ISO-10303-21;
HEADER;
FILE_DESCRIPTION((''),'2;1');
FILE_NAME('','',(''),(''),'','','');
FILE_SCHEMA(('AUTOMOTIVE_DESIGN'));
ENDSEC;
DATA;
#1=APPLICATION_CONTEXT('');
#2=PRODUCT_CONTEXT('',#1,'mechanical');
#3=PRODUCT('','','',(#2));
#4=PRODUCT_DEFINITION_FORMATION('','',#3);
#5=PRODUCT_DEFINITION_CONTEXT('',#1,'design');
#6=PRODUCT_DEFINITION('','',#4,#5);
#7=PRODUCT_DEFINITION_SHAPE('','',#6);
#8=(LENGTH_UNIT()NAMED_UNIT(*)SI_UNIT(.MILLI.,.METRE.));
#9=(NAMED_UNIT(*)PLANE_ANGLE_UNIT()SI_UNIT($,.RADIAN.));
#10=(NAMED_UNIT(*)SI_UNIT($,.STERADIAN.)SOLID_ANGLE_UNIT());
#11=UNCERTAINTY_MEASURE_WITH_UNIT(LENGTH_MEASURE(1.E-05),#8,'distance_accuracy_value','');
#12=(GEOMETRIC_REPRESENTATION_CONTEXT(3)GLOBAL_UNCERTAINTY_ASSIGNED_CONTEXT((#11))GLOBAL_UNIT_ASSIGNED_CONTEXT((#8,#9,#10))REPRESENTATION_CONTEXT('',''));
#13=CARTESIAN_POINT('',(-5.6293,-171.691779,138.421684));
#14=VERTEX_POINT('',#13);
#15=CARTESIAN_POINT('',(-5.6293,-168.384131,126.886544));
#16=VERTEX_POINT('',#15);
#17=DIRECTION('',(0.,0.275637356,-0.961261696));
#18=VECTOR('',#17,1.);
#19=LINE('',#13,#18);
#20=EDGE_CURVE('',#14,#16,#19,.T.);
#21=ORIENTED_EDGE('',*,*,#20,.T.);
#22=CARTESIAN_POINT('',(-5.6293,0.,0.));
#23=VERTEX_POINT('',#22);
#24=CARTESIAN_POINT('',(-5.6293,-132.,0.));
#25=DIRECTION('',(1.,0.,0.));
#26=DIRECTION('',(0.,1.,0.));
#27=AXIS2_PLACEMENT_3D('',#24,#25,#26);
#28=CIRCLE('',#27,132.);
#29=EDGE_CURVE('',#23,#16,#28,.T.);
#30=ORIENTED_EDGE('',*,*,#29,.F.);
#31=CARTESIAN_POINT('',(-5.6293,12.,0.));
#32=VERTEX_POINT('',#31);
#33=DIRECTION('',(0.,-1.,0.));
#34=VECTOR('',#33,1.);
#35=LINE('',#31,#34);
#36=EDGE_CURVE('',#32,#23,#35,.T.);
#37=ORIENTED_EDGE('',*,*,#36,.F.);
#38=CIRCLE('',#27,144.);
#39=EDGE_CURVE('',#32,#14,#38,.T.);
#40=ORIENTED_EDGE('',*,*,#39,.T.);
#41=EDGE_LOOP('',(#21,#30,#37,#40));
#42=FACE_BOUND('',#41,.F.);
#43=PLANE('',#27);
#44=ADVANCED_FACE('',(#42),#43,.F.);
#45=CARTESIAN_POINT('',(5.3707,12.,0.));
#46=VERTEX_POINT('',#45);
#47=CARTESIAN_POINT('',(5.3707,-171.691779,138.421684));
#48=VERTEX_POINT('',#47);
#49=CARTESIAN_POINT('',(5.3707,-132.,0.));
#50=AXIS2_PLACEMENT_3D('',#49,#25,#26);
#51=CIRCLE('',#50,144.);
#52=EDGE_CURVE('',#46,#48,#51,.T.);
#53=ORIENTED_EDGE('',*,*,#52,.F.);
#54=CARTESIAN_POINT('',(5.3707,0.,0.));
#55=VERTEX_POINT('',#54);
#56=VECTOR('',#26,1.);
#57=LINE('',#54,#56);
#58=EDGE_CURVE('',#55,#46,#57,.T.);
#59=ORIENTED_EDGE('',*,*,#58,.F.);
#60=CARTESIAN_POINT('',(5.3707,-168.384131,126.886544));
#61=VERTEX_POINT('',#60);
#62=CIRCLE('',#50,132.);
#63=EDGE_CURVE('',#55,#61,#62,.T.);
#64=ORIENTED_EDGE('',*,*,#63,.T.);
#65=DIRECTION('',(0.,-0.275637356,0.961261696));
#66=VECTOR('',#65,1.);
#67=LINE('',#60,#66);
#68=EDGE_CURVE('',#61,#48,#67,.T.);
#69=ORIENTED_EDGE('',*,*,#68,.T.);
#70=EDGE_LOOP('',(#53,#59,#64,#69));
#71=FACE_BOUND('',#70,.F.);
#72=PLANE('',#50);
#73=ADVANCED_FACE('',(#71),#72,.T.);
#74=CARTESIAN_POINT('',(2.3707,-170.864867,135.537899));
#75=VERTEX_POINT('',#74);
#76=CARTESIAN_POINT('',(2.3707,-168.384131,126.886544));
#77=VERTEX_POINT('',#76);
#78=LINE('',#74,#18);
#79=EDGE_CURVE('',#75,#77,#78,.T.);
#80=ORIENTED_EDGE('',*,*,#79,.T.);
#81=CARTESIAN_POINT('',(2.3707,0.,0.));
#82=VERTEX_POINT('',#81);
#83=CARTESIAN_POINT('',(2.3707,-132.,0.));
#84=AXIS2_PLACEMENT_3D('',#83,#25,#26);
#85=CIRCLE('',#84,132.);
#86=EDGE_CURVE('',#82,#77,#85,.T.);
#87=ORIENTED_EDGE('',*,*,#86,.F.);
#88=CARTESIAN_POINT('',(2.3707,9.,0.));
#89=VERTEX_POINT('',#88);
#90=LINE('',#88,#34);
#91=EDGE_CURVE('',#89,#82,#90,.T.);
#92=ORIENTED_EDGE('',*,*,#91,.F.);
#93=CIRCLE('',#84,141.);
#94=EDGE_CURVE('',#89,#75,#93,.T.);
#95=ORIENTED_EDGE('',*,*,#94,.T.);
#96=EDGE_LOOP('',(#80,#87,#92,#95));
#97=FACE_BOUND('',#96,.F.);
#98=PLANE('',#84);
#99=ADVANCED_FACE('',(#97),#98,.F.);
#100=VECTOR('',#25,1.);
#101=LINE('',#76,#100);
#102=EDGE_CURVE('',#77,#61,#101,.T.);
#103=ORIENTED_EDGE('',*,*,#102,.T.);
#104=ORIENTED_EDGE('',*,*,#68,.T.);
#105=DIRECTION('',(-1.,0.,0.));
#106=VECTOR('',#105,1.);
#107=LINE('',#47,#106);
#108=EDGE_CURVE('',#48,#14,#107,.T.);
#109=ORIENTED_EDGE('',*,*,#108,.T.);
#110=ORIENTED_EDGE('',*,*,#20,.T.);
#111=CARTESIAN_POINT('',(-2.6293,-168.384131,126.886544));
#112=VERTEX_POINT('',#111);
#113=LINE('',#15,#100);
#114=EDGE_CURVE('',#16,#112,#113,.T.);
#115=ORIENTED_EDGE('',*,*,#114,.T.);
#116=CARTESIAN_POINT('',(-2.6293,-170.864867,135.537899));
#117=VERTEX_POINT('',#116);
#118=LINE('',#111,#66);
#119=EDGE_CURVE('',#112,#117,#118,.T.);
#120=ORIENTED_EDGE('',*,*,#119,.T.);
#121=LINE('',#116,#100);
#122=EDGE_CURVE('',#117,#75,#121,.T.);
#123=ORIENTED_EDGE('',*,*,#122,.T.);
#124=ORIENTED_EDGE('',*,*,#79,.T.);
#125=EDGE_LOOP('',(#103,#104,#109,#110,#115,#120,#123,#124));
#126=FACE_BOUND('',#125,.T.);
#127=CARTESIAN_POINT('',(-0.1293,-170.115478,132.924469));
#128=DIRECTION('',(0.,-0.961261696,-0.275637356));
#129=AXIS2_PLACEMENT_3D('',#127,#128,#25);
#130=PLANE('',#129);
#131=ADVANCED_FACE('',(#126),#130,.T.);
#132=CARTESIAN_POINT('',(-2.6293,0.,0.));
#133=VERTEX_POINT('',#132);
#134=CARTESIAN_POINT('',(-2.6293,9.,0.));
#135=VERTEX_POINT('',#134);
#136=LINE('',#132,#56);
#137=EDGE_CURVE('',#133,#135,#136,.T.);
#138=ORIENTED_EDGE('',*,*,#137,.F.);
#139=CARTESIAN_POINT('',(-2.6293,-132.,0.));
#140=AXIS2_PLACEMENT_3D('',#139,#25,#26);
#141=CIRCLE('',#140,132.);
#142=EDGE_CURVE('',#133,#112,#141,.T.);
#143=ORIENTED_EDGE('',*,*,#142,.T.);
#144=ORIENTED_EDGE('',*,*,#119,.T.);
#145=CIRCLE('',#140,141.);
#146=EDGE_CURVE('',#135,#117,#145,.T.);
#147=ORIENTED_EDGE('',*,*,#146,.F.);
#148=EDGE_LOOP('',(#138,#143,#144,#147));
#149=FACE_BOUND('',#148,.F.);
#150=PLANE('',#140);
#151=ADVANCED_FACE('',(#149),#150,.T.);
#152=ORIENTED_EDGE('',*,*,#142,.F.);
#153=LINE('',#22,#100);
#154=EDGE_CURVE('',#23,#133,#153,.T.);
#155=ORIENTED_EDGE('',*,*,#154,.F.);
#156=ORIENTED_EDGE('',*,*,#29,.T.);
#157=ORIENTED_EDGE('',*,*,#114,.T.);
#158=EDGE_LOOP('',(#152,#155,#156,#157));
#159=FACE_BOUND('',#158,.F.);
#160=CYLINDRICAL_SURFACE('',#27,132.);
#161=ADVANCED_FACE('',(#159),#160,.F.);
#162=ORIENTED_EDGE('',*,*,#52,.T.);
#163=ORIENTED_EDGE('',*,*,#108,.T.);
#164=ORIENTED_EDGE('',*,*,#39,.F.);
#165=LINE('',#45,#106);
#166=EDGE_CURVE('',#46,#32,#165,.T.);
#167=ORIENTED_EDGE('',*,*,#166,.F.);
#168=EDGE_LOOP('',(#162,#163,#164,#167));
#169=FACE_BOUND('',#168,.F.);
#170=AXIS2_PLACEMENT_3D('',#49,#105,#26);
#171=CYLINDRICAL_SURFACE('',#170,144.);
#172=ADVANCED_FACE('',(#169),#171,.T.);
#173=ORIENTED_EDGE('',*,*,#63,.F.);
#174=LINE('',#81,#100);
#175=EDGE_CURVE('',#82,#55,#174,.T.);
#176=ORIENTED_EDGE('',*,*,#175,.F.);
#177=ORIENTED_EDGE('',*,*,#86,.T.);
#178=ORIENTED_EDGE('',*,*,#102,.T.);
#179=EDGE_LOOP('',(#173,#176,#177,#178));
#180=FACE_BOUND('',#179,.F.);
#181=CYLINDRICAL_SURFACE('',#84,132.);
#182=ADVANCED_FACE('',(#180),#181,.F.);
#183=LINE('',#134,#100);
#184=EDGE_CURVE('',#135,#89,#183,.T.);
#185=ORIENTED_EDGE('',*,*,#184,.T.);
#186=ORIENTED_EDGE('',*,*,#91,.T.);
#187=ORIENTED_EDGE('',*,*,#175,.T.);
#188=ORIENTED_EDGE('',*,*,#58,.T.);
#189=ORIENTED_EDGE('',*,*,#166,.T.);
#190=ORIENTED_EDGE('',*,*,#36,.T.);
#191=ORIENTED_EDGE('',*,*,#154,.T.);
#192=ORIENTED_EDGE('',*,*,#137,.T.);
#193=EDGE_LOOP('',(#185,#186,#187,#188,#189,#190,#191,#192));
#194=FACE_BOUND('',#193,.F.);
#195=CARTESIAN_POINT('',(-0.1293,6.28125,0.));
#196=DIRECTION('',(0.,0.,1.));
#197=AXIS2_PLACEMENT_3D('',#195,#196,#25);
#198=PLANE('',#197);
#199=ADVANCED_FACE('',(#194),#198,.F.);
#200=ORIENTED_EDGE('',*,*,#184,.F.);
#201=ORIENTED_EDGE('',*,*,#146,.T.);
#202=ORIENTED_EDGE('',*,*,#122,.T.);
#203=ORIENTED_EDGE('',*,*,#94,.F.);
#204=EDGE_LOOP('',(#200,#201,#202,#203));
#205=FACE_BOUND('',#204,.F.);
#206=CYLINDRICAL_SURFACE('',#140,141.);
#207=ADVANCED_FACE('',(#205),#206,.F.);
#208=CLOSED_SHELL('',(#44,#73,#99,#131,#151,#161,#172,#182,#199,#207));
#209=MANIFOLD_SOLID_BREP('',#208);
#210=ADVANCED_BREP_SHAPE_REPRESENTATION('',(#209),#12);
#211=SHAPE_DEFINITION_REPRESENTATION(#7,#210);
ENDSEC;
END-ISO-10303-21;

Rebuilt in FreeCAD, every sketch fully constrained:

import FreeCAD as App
import Part
import Sketcher
from FreeCAD import Vector

doc = App.newDocument("Part")
body = doc.addObject("PartDesign::Body", "Body")

# Sketch on XY plane
sketch1 = body.newObject("Sketcher::SketchObject", "Sketch")
sketch1.AttachmentSupport = (doc.getObject("XY_Plane"), [""])
sketch1.MapMode = "FlatFace"
sketch1.addGeometry([
    Part.LineSegment(Vector(5.4, 12, 0), Vector(-5.6, 12, 0)),  # 0
    Part.LineSegment(Vector(-5.6, 12, 0), Vector(-5.6, 0, 0)),  # 1
    Part.LineSegment(Vector(-5.6, 0, 0), Vector(-2.6, 0, 0)),  # 2
    Part.LineSegment(Vector(-2.6, 0, 0), Vector(-2.6, 9, 0)),  # 3
    Part.LineSegment(Vector(-2.6, 9, 0), Vector(2.4, 9, 0)),  # 4
    Part.LineSegment(Vector(2.4, 9, 0), Vector(2.4, 0, 0)),  # 5
    Part.LineSegment(Vector(2.4, 0, 0), Vector(5.4, 0, 0)),  # 6
    Part.LineSegment(Vector(5.4, 0, 0), Vector(5.4, 12, 0)),  # 7
], False)
sketch1.addGeometry(Part.LineSegment(Vector(-5.6, -132, 0), Vector(5.4, -132, 0)), True)  # axis
sketch1.addConstraint([
    Sketcher.Constraint("Coincident", 0, 2, 1, 1),
    Sketcher.Constraint("Coincident", 1, 2, 2, 1),
    Sketcher.Constraint("Coincident", 2, 2, 3, 1),
    Sketcher.Constraint("Coincident", 3, 2, 4, 1),
    Sketcher.Constraint("Coincident", 4, 2, 5, 1),
    Sketcher.Constraint("Coincident", 5, 2, 6, 1),
    Sketcher.Constraint("Coincident", 6, 2, 7, 1),
    Sketcher.Constraint("Coincident", 7, 2, 0, 1),
    Sketcher.Constraint("Horizontal", 0),
    Sketcher.Constraint("Vertical", 1),
    Sketcher.Constraint("Horizontal", 2),
    Sketcher.Constraint("Vertical", 3),
    Sketcher.Constraint("Horizontal", 4),
    Sketcher.Constraint("Vertical", 5),
    Sketcher.Constraint("Horizontal", 6),
    Sketcher.Constraint("Vertical", 7),
    Sketcher.Constraint("Horizontal", 8),
    Sketcher.Constraint("PointOnObject", 1, 2, -1),
    Sketcher.Constraint("PointOnObject", 5, 2, -1),
    Sketcher.Constraint("Vertical", 1, 2, 8, 1),
    Sketcher.Constraint("Vertical", 7, 2, 8, 2),
    Sketcher.Constraint("Equal", 2, 6),
    Sketcher.Constraint("DistanceX", 0, 2, 0, 1, 11.0),
    Sketcher.Constraint("DistanceX", 2, 1, 2, 2, 3.0),
    Sketcher.Constraint("DistanceY", 1, 2, 1, 1, 12.0),
    Sketcher.Constraint("DistanceY", 3, 1, 3, 2, 9.0),
    Sketcher.Constraint("DistanceY", 8, 1, -1, 1, 132.0),
    Sketcher.Constraint("DistanceX", 0, 2, -1, 1, 5.6293),
])
revolution = body.newObject("PartDesign::Revolution", "Revolution")
revolution.Profile = sketch1
revolution.ReferenceAxis = (sketch1, ["Axis0"])
revolution.Angle = 106

doc.recompute()
